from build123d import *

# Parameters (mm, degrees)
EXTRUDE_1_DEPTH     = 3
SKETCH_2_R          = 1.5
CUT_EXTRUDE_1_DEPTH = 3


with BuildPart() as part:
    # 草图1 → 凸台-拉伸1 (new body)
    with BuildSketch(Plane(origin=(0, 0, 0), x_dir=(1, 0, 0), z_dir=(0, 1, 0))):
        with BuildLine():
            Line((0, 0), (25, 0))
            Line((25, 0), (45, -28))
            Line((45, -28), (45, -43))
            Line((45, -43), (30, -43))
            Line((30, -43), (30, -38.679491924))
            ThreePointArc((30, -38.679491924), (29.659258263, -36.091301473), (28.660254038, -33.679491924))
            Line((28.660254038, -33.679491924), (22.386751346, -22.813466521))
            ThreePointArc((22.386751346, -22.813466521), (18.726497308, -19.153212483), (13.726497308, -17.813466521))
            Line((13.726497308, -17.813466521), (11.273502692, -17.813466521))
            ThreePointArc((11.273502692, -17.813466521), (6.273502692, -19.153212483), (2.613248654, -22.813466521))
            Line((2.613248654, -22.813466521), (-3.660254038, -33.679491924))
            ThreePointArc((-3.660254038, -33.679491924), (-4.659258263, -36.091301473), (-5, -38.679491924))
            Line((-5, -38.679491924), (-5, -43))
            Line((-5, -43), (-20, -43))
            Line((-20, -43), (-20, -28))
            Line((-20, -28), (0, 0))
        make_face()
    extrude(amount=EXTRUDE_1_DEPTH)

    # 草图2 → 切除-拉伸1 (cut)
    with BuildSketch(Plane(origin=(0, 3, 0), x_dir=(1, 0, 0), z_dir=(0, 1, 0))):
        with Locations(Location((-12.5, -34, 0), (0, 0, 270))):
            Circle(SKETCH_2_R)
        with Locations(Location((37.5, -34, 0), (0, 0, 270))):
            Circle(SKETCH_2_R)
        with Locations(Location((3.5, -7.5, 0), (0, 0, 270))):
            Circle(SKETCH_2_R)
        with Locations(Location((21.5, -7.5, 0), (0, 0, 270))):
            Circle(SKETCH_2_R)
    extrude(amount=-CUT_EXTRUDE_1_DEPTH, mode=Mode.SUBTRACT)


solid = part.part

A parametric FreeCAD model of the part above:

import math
import FreeCAD as App
import Part
import Sketcher
Q = App.Units.Quantity

doc = App.newDocument("Part")
body = doc.addObject("PartDesign::Body", "Body")

sketch1 = body.newObject("Sketcher::SketchObject", "Sketch")
sketch1.AttachmentSupport = (doc.getObject("XZ_Plane"), [""])
sketch1.MapMode = "FlatFace"
sketch1.addGeometry([
    Part.LineSegment(App.Vector(25, 0, 0), App.Vector(0, 0, 0)),
    Part.LineSegment(App.Vector(0, 0, 0), App.Vector(-20, 28, 0)),
    Part.LineSegment(App.Vector(-20, 28, 0), App.Vector(-20, 43, 0)),
    Part.LineSegment(App.Vector(-20, 43, 0), App.Vector(-5, 43, 0)),
    Part.LineSegment(App.Vector(-5, 43, 0), App.Vector(-5, 38.7, 0)),
    Part.ArcOfCircle(Part.Circle(App.Vector(5, 38.7, 0), App.Vector(0, 0, 1), 10), math.radians(180), math.radians(210)),
    Part.LineSegment(App.Vector(-3.7, 33.7, 0), App.Vector(2.6, 22.8, 0)),
    Part.ArcOfCircle(Part.Circle(App.Vector(11.3, 27.8, 0), App.Vector(0, 0, 1), 10), math.radians(-150), math.radians(-90)),
    Part.LineSegment(App.Vector(11.3, 17.8, 0), App.Vector(13.7, 17.8, 0)),
    Part.ArcOfCircle(Part.Circle(App.Vector(13.7, 27.8, 0), App.Vector(0, 0, 1), 10), math.radians(-90), math.radians(-30)),
    Part.LineSegment(App.Vector(22.4, 22.8, 0), App.Vector(28.7, 33.7, 0)),
    Part.ArcOfCircle(Part.Circle(App.Vector(20, 38.7, 0), App.Vector(0, 0, 1), 10), math.radians(-30), math.radians(0)),
    Part.LineSegment(App.Vector(30, 38.7, 0), App.Vector(30, 43, 0)),
    Part.LineSegment(App.Vector(30, 43, 0), App.Vector(45, 43, 0)),
    Part.LineSegment(App.Vector(45, 43, 0), App.Vector(45, 28, 0)),
    Part.LineSegment(App.Vector(45, 28, 0), App.Vector(25, 0, 0)),
], False)
sketch1.addConstraint([
    Sketcher.Constraint("Coincident", 0, 2, 1, 1),
    Sketcher.Constraint("Coincident", 1, 2, 2, 1),
    Sketcher.Constraint("Coincident", 2, 2, 3, 1),
    Sketcher.Constraint("Coincident", 3, 2, 4, 1),
    Sketcher.Constraint("Tangent", 4, 2, 5, 1),
    Sketcher.Constraint("Tangent", 5, 2, 6, 1),
    Sketcher.Constraint("Tangent", 6, 2, 7, 1),
    Sketcher.Constraint("Tangent", 7, 2, 8, 1),
    Sketcher.Constraint("Tangent", 8, 2, 9, 1),
    Sketcher.Constraint("Tangent", 9, 2, 10, 1),
    Sketcher.Constraint("Tangent", 10, 2, 11, 1),
    Sketcher.Constraint("Tangent", 11, 2, 12, 1),
    Sketcher.Constraint("Coincident", 12, 2, 13, 1),
    Sketcher.Constraint("Coincident", 13, 2, 14, 1),
    Sketcher.Constraint("Coincident", 14, 2, 15, 1),
    Sketcher.Constraint("Coincident", 15, 2, 0, 1),
    Sketcher.Constraint("Horizontal", 0),
    Sketcher.Constraint("Vertical", 2),
    Sketcher.Constraint("Horizontal", 3),
    Sketcher.Constraint("Vertical", 4),
    Sketcher.Constraint("Horizontal", 8),
    Sketcher.Constraint("Vertical", 12),
    Sketcher.Constraint("Horizontal", 13),
    Sketcher.Constraint("Vertical", 14),
    Sketcher.Constraint("Coincident", 0, 2, -1, 1),
    Sketcher.Constraint("Equal", 5, 7),
    Sketcher.Constraint("Equal", 7, 9),
    Sketcher.Constraint("Equal", 9, 11),
    Sketcher.Constraint("Horizontal", 5, 3, 11, 3),
    Sketcher.Constraint("Horizontal", 6, 2, 9, 2),
    Sketcher.Constraint("Horizontal", 3, 2, 12, 2),
    Sketcher.Constraint("Horizontal", 1, 2, 14, 2),
    Sketcher.Constraint("Equal", 3, 13),
    Sketcher.Constraint("Equal", 13, 2),
    Sketcher.Constraint("Equal", 1, 15),
    Sketcher.Constraint("Radius", 5, Q("10 mm")),
    Sketcher.Constraint("DistanceX", 0, 2, 0, 1, Q("25 mm")),
    Sketcher.Constraint("DistanceX", 3, 1, 3, 2, Q("15 mm")),
    Sketcher.Constraint("Angle", 6, Q("-60 deg")),
    Sketcher.Constraint("DistanceX", -1, 1, 5, 3, Q("5 mm")),
    Sketcher.Constraint("DistanceY", -1, 1, 1, 2, Q("28 mm")),
    Sketcher.Constraint("DistanceY", 4, 2, 4, 1, Q("4.320508 mm")),
    Sketcher.Constraint("DistanceX", 8, 1, 8, 2, Q("2.452995 mm")),
])
pad1 = body.newObject("PartDesign::Pad", "Pad")
pad1.Profile = sketch1
pad1.Length = 3
pad1.Reversed = True

sketch2 = body.newObject("Sketcher::SketchObject", "Sketch001")
sketch2.AttachmentSupport = (doc.getObject("XZ_Plane"), [""])
sketch2.MapMode = "FlatFace"
sketch2.AttachmentOffset = App.Placement(App.Vector(0, 0, -3), App.Rotation())
sketch2.addGeometry([
    Part.Circle(App.Vector(-12.5, 34, 0), App.Vector(0, 0, 1), 1.5),
    Part.Circle(App.Vector(37.5, 34, 0), App.Vector(0, 0, 1), 1.5),
    Part.Circle(App.Vector(3.5, 7.5, 0), App.Vector(0, 0, 1), 1.5),
    Part.Circle(App.Vector(21.5, 7.5, 0), App.Vector(0, 0, 1), 1.5),
], False)
sketch2.addConstraint([
    Sketcher.Constraint("Equal", 0, 1),
    Sketcher.Constraint("Equal", 1, 2),
    Sketcher.Constraint("Equal", 2, 3),
    Sketcher.Constraint("Horizontal", 0, 3, 1, 3),
    Sketcher.Constraint("Horizontal", 2, 3, 3, 3),
    Sketcher.Constraint("Diameter", 0, Q("3 mm")),
    Sketcher.Constraint("DistanceY", -1, 1, 0, 3, Q("34 mm")),
    Sketcher.Constraint("DistanceX", 0, 3, 1, 3, Q("50 mm")),
    Sketcher.Constraint("DistanceX", 0, 3, 2, 3, Q("16 mm")),
    Sketcher.Constraint("DistanceX", 2, 3, 3, 3, Q("18 mm")),
    Sketcher.Constraint("DistanceX", 0, 3, -1, 1, Q("12.5 mm")),
    Sketcher.Constraint("DistanceY", -1, 1, 2, 3, Q("7.5 mm")),
])
pocket1 = body.newObject("PartDesign::Pocket", "Pocket")
pocket1.Profile = sketch2
pocket1.Length = 3
pocket1.Reversed = True

doc.recompute()
